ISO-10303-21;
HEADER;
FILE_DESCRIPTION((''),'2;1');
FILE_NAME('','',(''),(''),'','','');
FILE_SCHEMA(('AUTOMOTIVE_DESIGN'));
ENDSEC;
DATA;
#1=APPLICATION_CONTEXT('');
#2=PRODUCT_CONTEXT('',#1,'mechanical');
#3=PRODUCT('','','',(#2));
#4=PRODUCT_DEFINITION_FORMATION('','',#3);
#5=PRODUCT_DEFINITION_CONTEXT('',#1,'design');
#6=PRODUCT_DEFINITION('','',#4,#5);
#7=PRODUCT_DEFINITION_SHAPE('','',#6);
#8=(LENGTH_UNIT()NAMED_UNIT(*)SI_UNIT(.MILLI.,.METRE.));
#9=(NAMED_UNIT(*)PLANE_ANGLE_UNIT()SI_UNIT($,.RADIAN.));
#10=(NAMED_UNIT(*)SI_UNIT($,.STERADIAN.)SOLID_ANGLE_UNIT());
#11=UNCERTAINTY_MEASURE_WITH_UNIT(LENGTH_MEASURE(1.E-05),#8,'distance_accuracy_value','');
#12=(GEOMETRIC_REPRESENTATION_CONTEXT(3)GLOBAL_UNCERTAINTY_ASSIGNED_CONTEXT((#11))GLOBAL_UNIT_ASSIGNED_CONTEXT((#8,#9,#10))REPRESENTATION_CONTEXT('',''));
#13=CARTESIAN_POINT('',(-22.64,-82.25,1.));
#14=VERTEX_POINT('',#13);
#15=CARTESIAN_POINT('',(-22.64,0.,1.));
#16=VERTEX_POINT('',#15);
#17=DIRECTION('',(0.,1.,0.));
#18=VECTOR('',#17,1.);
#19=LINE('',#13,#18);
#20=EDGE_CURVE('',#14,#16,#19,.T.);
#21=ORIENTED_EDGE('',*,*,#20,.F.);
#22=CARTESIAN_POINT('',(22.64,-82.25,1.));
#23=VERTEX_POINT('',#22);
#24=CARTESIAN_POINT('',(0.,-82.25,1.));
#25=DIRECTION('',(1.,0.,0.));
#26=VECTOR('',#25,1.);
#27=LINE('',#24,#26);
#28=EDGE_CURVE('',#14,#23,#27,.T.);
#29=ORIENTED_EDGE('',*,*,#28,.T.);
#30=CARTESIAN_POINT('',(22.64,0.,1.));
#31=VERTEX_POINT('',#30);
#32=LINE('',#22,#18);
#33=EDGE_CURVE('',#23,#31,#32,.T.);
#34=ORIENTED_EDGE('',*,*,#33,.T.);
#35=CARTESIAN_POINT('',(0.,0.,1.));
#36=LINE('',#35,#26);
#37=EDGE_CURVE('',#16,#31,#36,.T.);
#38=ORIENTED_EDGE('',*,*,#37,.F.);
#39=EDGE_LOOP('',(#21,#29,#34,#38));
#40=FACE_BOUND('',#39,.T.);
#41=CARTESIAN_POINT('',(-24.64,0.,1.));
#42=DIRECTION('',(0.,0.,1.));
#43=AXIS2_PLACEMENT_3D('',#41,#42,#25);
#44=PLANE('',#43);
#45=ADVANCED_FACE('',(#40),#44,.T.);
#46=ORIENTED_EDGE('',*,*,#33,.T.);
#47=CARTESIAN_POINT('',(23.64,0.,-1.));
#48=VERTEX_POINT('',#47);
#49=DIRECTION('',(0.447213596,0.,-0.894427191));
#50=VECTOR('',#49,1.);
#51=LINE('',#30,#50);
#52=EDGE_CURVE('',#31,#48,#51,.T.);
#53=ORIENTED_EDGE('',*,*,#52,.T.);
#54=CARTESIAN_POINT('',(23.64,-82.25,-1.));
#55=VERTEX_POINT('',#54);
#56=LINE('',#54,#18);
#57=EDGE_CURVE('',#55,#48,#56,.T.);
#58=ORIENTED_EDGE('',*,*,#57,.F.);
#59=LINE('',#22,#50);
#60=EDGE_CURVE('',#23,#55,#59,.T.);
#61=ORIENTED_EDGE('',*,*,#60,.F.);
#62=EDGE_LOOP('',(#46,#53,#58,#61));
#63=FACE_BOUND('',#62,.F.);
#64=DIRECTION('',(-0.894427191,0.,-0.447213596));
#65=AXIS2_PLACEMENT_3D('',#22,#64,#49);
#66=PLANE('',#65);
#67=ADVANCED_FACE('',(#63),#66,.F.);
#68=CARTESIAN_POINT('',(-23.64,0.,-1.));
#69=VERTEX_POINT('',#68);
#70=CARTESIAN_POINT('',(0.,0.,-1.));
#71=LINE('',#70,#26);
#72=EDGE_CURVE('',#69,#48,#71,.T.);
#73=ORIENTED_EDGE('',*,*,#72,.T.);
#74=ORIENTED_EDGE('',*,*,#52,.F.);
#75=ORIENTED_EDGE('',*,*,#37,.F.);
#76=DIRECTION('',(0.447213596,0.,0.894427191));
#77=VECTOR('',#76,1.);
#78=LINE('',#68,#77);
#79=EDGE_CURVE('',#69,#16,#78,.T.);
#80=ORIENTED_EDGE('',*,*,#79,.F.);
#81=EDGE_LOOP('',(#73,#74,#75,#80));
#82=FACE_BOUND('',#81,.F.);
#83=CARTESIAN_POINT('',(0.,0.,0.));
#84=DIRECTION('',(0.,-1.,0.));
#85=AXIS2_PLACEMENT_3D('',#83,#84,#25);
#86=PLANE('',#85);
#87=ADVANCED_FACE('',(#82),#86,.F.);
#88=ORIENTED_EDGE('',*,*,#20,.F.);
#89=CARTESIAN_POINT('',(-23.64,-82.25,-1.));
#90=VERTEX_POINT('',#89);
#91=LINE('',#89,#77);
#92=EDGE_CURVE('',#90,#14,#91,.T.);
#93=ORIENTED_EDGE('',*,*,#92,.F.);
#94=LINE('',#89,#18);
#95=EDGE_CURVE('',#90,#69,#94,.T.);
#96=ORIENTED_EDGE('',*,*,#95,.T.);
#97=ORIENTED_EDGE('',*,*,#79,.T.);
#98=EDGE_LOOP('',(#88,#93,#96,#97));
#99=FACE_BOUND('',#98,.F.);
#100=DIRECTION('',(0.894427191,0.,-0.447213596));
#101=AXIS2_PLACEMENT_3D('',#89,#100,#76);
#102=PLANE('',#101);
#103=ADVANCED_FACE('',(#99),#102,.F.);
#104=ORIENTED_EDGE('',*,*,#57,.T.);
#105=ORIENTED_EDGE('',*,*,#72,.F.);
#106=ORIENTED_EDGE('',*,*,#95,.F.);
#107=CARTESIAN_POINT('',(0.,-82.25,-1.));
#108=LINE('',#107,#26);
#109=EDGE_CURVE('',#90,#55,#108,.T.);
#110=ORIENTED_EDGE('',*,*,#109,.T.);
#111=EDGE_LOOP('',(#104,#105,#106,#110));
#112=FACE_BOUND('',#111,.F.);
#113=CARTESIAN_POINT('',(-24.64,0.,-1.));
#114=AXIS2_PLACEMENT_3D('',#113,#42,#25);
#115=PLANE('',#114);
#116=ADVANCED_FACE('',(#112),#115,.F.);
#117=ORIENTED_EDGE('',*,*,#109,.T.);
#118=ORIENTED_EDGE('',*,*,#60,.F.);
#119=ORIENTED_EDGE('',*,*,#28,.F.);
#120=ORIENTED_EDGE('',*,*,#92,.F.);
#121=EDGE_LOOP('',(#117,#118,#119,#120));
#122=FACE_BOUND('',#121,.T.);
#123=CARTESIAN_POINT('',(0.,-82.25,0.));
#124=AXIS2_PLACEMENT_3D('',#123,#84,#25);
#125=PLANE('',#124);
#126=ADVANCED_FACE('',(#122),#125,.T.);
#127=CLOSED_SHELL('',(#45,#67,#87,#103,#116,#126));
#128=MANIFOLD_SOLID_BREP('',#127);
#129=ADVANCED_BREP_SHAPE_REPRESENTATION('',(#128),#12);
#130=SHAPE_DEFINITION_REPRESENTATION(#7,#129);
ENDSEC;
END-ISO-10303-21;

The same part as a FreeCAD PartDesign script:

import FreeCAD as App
import Part
import Sketcher

V = App.Vector

doc = App.newDocument("Part")
body = doc.addObject("PartDesign::Body", "Body")

sketch1 = doc.addObject("Sketcher::SketchObject", "Sketch")
body.addObject(sketch1)
sketch1.AttachmentSupport = (doc.XZ_Plane, [""])
sketch1.MapMode = "FlatFace"
sketch1.addGeometry([
    Part.LineSegment(V(-24.6, 1, 0), V(-24.6, -1, 0)),
    Part.LineSegment(V(-24.6, -1, 0), V(24.6, -1, 0)),
    Part.LineSegment(V(24.6, -1, 0), V(24.6, 1, 0)),
    Part.LineSegment(V(24.6, 1, 0), V(-24.6, 1, 0)),
], False)
sketch1.addConstraint([
    Sketcher.Constraint("Coincident", 0, 2, 1, 1),
    Sketcher.Constraint("Coincident", 1, 2, 2, 1),
    Sketcher.Constraint("Coincident", 2, 2, 3, 1),
    Sketcher.Constraint("Coincident", 3, 2, 0, 1),
    Sketcher.Constraint("Vertical", 0),
    Sketcher.Constraint("Horizontal", 1),
    Sketcher.Constraint("Vertical", 2),
    Sketcher.Constraint("Horizontal", 3),
    Sketcher.Constraint("Symmetric", 0, 2, 2, 2, -1, 1),
    Sketcher.Constraint("DistanceY", 0, 2, 0, 1, 2.0),
    Sketcher.Constraint("DistanceX", 1, 1, 1, 2, 49.28),
])
pad1 = doc.addObject("PartDesign::Pad", "Pad")
body.addObject(pad1)
pad1.Profile = sketch1
pad1.Length = 82.25

sketch2 = doc.addObject("Sketcher::SketchObject", "Sketch001")
body.addObject(sketch2)
sketch2.AttachmentSupport = (doc.XZ_Plane, [""])
sketch2.MapMode = "FlatFace"
sketch2.AttachmentOffset = App.Placement(V(0, 0, 82.25), App.Rotation())
sketch2.addGeometry([
    Part.LineSegment(V(-24.6, 1, 0), V(-24.6, -1, 0)),
    Part.LineSegment(V(-24.6, -1, 0), V(-23.6, -1, 0)),
    Part.LineSegment(V(-23.6, -1, 0), V(-22.6, 1, 0)),
    Part.LineSegment(V(-22.6, 1, 0), V(-24.6, 1, 0)),
    Part.LineSegment(V(22.6, 1, 0), V(23.6, -1, 0)),
    Part.LineSegment(V(23.6, -1, 0), V(24.6, -1, 0)),
    Part.LineSegment(V(24.6, -1, 0), V(24.6, 1, 0)),
    Part.LineSegment(V(24.6, 1, 0), V(22.6, 1, 0)),
], False)
sketch2.addConstraint([
    Sketcher.Constraint("Coincident", 0, 2, 1, 1),
    Sketcher.Constraint("Coincident", 1, 2, 2, 1),
    Sketcher.Constraint("Coincident", 2, 2, 3, 1),
    Sketcher.Constraint("Coincident", 3, 2, 0, 1),
    Sketcher.Constraint("Coincident", 4, 2, 5, 1),
    Sketcher.Constraint("Coincident", 5, 2, 6, 1),
    Sketcher.Constraint("Coincident", 6, 2, 7, 1),
    Sketcher.Constraint("Coincident", 7, 2, 4, 1),
    Sketcher.Constraint("Vertical", 0),
    Sketcher.Constraint("Horizontal", 1),
    Sketcher.Constraint("Horizontal", 3),
    Sketcher.Constraint("Horizontal", 5),
    Sketcher.Constraint("Vertical", 6),
    Sketcher.Constraint("Horizontal", 7),
    Sketcher.Constraint("Symmetric", 3, 2, 5, 2, -1, 1),
    Sketcher.Constraint("Symmetric", 1, 2, 4, 2, -2),
    Sketcher.Constraint("Symmetric", 2, 2, 7, 2, -2),
    Sketcher.Constraint("Equal", 7, 0),
    Sketcher.Constraint("DistanceX", 1, 1, 1, 2, 1.0),
    Sketcher.Constraint("DistanceX", 3, 2, 3, 1, 2.0),
    Sketcher.Constraint("DistanceX", 0, 2, -1, 1, 24.64),
])
pocket1 = doc.addObject("PartDesign::Pocket", "Pocket")
body.addObject(pocket1)
pocket1.Profile = sketch2
pocket1.Length = 82.25

doc.recompute()
